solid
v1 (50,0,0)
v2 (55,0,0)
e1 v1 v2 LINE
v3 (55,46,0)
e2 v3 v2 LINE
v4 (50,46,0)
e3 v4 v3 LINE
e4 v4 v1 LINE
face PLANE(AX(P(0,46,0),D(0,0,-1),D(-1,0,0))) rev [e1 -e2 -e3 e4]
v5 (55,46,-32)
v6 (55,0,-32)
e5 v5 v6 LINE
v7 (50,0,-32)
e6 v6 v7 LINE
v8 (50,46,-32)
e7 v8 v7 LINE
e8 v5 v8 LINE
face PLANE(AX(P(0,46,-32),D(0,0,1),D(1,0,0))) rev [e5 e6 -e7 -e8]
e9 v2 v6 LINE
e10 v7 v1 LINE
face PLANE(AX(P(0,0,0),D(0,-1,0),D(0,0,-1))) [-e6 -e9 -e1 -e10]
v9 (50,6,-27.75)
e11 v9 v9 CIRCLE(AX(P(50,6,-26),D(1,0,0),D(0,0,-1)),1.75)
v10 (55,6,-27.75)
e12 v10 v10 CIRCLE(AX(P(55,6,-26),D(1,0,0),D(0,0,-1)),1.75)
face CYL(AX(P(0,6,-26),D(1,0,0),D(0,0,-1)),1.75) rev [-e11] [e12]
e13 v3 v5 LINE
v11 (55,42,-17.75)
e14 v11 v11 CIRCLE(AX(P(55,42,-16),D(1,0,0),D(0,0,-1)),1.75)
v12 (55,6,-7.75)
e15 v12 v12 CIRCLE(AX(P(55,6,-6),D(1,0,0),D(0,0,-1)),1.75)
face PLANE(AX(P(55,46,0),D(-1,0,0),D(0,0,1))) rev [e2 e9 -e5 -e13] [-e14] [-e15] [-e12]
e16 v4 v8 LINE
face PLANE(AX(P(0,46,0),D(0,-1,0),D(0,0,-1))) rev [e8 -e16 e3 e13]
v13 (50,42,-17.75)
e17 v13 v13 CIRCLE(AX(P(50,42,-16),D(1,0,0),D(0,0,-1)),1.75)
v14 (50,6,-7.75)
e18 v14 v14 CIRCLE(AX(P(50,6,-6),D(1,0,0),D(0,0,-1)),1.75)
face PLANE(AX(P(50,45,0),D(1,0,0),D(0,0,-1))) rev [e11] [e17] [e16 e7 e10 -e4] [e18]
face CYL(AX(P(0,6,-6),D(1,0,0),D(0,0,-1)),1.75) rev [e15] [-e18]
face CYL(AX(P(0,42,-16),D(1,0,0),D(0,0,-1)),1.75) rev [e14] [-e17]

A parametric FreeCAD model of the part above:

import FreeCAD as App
import Part
import Sketcher
from FreeCAD import Vector
Q = App.Units.Quantity

doc = App.newDocument("Part")
body = doc.addObject("PartDesign::Body", "Body")

sketch1 = body.newObject("Sketcher::SketchObject", "Sketch")
sketch1.AttachmentSupport = (doc.getObject("XZ_Plane"), [""])
sketch1.MapMode = "FlatFace"
sketch1.addGeometry(Part.LineSegment(Vector(0, -32, 0), Vector(0, 0, 0)), False)
sketch1.addGeometry(Part.LineSegment(Vector(0, 0, 0), Vector(55, 0, 0)), False)
sketch1.addGeometry(Part.LineSegment(Vector(55, 0, 0), Vector(55, -32, 0)), False)
sketch1.addGeometry(Part.LineSegment(Vector(55, -32, 0), Vector(0, -32, 0)), False)
sketch1.addConstraint(Sketcher.Constraint("Coincident", 0, 2, 1, 1))
sketch1.addConstraint(Sketcher.Constraint("Coincident", 1, 2, 2, 1))
sketch1.addConstraint(Sketcher.Constraint("Coincident", 2, 2, 3, 1))
sketch1.addConstraint(Sketcher.Constraint("Coincident", 3, 2, 0, 1))
sketch1.addConstraint(Sketcher.Constraint("Vertical", 0))
sketch1.addConstraint(Sketcher.Constraint("Horizontal", 1))
sketch1.addConstraint(Sketcher.Constraint("Vertical", 2))
sketch1.addConstraint(Sketcher.Constraint("Horizontal", 3))
sketch1.addConstraint(Sketcher.Constraint("Coincident", 0, 2, -1, 1))
sketch1.addConstraint(Sketcher.Constraint("DistanceX", 1, 1, 1, 2, Q("55 mm")))
sketch1.addConstraint(Sketcher.Constraint("DistanceY", 0, 1, 0, 2, Q("32 mm")))
pad1 = body.newObject("PartDesign::Pad", "Pad")
pad1.Profile = sketch1
pad1.Length = 46
pad1.Reversed = True

sketch2 = body.newObject("Sketcher::SketchObject", "Sketch001")
sketch2.AttachmentSupport = (doc.getObject("XZ_Plane"), [""])
sketch2.MapMode = "FlatFace"
sketch2.addGeometry(Part.LineSegment(Vector(5, 0, 0), Vector(5, -32, 0)), False)
sketch2.addGeometry(Part.LineSegment(Vector(5, -32, 0), Vector(50, -32, 0)), False)
sketch2.addGeometry(Part.LineSegment(Vector(50, -32, 0), Vector(50, 0, 0)), False)
sketch2.addGeometry(Part.LineSegment(Vector(50, 0, 0), Vector(5, 0, 0)), False)
sketch2.addConstraint(Sketcher.Constraint("Coincident", 0, 2, 1, 1))
sketch2.addConstraint(Sketcher.Constraint("Coincident", 1, 2, 2, 1))
sketch2.addConstraint(Sketcher.Constraint("Coincident", 2, 2, 3, 1))
sketch2.addConstraint(Sketcher.Constraint("Coincident", 3, 2, 0, 1))
sketch2.addConstraint(Sketcher.Constraint("Vertical", 0))
sketch2.addConstraint(Sketcher.Constraint("Horizontal", 1))
sketch2.addConstraint(Sketcher.Constraint("Vertical", 2))
sketch2.addConstraint(Sketcher.Constraint("Horizontal", 3))
sketch2.addConstraint(Sketcher.Constraint("PointOnObject", 2, 2, -1))
sketch2.addConstraint(Sketcher.Constraint("DistanceX", 1, 1, 1, 2, Q("45 mm")))
sketch2.addConstraint(Sketcher.Constraint("DistanceY", 0, 2, 0, 1, Q("32 mm")))
sketch2.addConstraint(Sketcher.Constraint("DistanceX", -1, 1, 0, 2, Q("5 mm")))
pocket1 = body.newObject("PartDesign::Pocket", "Pocket")
pocket1.Profile = sketch2
pocket1.Length = 45

sketch3 = body.newObject("Sketcher::SketchObject", "Sketch002")
sketch3.AttachmentSupport = (doc.getObject("XZ_Plane"), [""])
sketch3.MapMode = "FlatFace"
sketch3.AttachmentOffset = App.Placement(Vector(0, 0, -46), App.Rotation())
sketch3.addGeometry(Part.Circle(Vector(43.5, -26, 0), Vector(0, 0, 1), 1.8), False)
sketch3.addGeometry(Part.Circle(Vector(43.5, -6, 0), Vector(0, 0, 1), 1.8), False)
sketch3.addGeometry(Part.Circle(Vector(11.5, -26, 0), Vector(0, 0, 1), 1.8), False)
sketch3.addGeometry(Part.Circle(Vector(11.5, -6, 0), Vector(0, 0, 1), 1.8), False)
sketch3.addConstraint(Sketcher.Constraint("Equal", 0, 1))
sketch3.addConstraint(Sketcher.Constraint("Equal", 1, 2))
sketch3.addConstraint(Sketcher.Constraint("Equal", 2, 3))
sketch3.addConstraint(Sketcher.Constraint("Horizontal", 0, 3, 2, 3))
sketch3.addConstraint(Sketcher.Constraint("Horizontal", 1, 3, 3, 3))
sketch3.addConstraint(Sketcher.Constraint("Vertical", 0, 3, 1, 3))
sketch3.addConstraint(Sketcher.Constraint("Vertical", 2, 3, 3, 3))
sketch3.addConstraint(Sketcher.Constraint("Diameter", 0, Q("3.5 mm")))
sketch3.addConstraint(Sketcher.Constraint("DistanceY", 0, 3, -1, 1, Q("26 mm")))
sketch3.addConstraint(Sketcher.Constraint("DistanceY", 1, 3, -1, 1, Q("6 mm")))
sketch3.addConstraint(Sketcher.Constraint("DistanceX", 2, 3, 0, 3, Q("32 mm")))
sketch3.addConstraint(Sketcher.Constraint("DistanceX", -1, 1, 0, 3, Q("43.5 mm")))
pocket2 = body.newObject("PartDesign::Pocket", "Pocket001")
pocket2.Profile = sketch3
pocket2.Type = "ThroughAll"
pocket2.Reversed = True

sketch4 = body.newObject("Sketcher::SketchObject", "Sketch003")
sketch4.AttachmentSupport = (doc.getObject("YZ_Plane"), [""])
sketch4.MapMode = "FlatFace"
sketch4.AttachmentOffset = App.Placement(Vector(0, 0, 55), App.Rotation())
sketch4.addGeometry(Part.Circle(Vector(6, -6, 0), Vector(0, 0, 1), 1.8), False)
sketch4.addGeometry(Part.Circle(Vector(6, -26, 0), Vector(0, 0, 1), 1.8), False)
sketch4.addGeometry(Part.Circle(Vector(42, -16, 0), Vector(0, 0, 1), 1.8), False)
sketch4.addConstraint(Sketcher.Constraint("Equal", 0, 1))
sketch4.addConstraint(Sketcher.Constraint("Equal", 1, 2))
sketch4.addConstraint(Sketcher.Constraint("Vertical", 0, 3, 1, 3))
sketch4.addConstraint(Sketcher.Constraint("Diameter", 0, Q("3.5 mm")))
sketch4.addConstraint(Sketcher.Constraint("DistanceX", -1, 1, 0, 3, Q("6 mm")))
sketch4.addConstraint(Sketcher.Constraint("DistanceY", 0, 3, -1, 1, Q("6 mm")))
sketch4.addConstraint(Sketcher.Constraint("DistanceY", 1, 3, -1, 1, Q("26 mm")))
sketch4.addConstraint(Sketcher.Constraint("DistanceX", -1, 1, 2, 3, Q("42 mm")))
sketch4.addConstraint(Sketcher.Constraint("DistanceY", 2, 3, -1, 1, Q("16 mm")))
pocket3 = body.newObject("PartDesign::Pocket", "Pocket002")
pocket3.Profile = sketch4
pocket3.Type = "ThroughAll"

sketch5 = body.newObject("Sketcher::SketchObject", "Sketch004")
sketch5.AttachmentSupport = (doc.getObject("YZ_Plane"), [""])
sketch5.MapMode = "FlatFace"
sketch5.addGeometry(Part.LineSegment(Vector(46, -32, 0), Vector(0, -32, 0)), False)
sketch5.addGeometry(Part.LineSegment(Vector(0, -32, 0), Vector(0, 0, 0)), False)
sketch5.addGeometry(Part.LineSegment(Vector(0, 0, 0), Vector(46, 0, 0)), False)
sketch5.addGeometry(Part.LineSegment(Vector(46, 0, 0), Vector(46, -32, 0)), False)
sketch5.addConstraint(Sketcher.Constraint("Coincident", 0, 2, 1, 1))
sketch5.addConstraint(Sketcher.Constraint("Coincident", 1, 2, 2, 1))
sketch5.addConstraint(Sketcher.Constraint("Coincident", 2, 2, 3, 1))
sketch5.addConstraint(Sketcher.Constraint("Coincident", 3, 2, 0, 1))
sketch5.addConstraint(Sketcher.Constraint("Horizontal", 0))
sketch5.addConstraint(Sketcher.Constraint("Vertical", 1))
sketch5.addConstraint(Sketcher.Constraint("Horizontal", 2))
sketch5.addConstraint(Sketcher.Constraint("Vertical", 3))
sketch5.addConstraint(Sketcher.Constraint("Coincident", 1, 2, -1, 1))
sketch5.addConstraint(Sketcher.Constraint("DistanceX", 0, 2, 0, 1, Q("46 mm")))
sketch5.addConstraint(Sketcher.Constraint("DistanceY", 1, 1, 1, 2, Q("32 mm")))
pocket4 = body.newObject("PartDesign::Pocket", "Pocket003")
pocket4.Profile = sketch5
pocket4.Length = 50
pocket4.Reversed = True

doc.recompute()
